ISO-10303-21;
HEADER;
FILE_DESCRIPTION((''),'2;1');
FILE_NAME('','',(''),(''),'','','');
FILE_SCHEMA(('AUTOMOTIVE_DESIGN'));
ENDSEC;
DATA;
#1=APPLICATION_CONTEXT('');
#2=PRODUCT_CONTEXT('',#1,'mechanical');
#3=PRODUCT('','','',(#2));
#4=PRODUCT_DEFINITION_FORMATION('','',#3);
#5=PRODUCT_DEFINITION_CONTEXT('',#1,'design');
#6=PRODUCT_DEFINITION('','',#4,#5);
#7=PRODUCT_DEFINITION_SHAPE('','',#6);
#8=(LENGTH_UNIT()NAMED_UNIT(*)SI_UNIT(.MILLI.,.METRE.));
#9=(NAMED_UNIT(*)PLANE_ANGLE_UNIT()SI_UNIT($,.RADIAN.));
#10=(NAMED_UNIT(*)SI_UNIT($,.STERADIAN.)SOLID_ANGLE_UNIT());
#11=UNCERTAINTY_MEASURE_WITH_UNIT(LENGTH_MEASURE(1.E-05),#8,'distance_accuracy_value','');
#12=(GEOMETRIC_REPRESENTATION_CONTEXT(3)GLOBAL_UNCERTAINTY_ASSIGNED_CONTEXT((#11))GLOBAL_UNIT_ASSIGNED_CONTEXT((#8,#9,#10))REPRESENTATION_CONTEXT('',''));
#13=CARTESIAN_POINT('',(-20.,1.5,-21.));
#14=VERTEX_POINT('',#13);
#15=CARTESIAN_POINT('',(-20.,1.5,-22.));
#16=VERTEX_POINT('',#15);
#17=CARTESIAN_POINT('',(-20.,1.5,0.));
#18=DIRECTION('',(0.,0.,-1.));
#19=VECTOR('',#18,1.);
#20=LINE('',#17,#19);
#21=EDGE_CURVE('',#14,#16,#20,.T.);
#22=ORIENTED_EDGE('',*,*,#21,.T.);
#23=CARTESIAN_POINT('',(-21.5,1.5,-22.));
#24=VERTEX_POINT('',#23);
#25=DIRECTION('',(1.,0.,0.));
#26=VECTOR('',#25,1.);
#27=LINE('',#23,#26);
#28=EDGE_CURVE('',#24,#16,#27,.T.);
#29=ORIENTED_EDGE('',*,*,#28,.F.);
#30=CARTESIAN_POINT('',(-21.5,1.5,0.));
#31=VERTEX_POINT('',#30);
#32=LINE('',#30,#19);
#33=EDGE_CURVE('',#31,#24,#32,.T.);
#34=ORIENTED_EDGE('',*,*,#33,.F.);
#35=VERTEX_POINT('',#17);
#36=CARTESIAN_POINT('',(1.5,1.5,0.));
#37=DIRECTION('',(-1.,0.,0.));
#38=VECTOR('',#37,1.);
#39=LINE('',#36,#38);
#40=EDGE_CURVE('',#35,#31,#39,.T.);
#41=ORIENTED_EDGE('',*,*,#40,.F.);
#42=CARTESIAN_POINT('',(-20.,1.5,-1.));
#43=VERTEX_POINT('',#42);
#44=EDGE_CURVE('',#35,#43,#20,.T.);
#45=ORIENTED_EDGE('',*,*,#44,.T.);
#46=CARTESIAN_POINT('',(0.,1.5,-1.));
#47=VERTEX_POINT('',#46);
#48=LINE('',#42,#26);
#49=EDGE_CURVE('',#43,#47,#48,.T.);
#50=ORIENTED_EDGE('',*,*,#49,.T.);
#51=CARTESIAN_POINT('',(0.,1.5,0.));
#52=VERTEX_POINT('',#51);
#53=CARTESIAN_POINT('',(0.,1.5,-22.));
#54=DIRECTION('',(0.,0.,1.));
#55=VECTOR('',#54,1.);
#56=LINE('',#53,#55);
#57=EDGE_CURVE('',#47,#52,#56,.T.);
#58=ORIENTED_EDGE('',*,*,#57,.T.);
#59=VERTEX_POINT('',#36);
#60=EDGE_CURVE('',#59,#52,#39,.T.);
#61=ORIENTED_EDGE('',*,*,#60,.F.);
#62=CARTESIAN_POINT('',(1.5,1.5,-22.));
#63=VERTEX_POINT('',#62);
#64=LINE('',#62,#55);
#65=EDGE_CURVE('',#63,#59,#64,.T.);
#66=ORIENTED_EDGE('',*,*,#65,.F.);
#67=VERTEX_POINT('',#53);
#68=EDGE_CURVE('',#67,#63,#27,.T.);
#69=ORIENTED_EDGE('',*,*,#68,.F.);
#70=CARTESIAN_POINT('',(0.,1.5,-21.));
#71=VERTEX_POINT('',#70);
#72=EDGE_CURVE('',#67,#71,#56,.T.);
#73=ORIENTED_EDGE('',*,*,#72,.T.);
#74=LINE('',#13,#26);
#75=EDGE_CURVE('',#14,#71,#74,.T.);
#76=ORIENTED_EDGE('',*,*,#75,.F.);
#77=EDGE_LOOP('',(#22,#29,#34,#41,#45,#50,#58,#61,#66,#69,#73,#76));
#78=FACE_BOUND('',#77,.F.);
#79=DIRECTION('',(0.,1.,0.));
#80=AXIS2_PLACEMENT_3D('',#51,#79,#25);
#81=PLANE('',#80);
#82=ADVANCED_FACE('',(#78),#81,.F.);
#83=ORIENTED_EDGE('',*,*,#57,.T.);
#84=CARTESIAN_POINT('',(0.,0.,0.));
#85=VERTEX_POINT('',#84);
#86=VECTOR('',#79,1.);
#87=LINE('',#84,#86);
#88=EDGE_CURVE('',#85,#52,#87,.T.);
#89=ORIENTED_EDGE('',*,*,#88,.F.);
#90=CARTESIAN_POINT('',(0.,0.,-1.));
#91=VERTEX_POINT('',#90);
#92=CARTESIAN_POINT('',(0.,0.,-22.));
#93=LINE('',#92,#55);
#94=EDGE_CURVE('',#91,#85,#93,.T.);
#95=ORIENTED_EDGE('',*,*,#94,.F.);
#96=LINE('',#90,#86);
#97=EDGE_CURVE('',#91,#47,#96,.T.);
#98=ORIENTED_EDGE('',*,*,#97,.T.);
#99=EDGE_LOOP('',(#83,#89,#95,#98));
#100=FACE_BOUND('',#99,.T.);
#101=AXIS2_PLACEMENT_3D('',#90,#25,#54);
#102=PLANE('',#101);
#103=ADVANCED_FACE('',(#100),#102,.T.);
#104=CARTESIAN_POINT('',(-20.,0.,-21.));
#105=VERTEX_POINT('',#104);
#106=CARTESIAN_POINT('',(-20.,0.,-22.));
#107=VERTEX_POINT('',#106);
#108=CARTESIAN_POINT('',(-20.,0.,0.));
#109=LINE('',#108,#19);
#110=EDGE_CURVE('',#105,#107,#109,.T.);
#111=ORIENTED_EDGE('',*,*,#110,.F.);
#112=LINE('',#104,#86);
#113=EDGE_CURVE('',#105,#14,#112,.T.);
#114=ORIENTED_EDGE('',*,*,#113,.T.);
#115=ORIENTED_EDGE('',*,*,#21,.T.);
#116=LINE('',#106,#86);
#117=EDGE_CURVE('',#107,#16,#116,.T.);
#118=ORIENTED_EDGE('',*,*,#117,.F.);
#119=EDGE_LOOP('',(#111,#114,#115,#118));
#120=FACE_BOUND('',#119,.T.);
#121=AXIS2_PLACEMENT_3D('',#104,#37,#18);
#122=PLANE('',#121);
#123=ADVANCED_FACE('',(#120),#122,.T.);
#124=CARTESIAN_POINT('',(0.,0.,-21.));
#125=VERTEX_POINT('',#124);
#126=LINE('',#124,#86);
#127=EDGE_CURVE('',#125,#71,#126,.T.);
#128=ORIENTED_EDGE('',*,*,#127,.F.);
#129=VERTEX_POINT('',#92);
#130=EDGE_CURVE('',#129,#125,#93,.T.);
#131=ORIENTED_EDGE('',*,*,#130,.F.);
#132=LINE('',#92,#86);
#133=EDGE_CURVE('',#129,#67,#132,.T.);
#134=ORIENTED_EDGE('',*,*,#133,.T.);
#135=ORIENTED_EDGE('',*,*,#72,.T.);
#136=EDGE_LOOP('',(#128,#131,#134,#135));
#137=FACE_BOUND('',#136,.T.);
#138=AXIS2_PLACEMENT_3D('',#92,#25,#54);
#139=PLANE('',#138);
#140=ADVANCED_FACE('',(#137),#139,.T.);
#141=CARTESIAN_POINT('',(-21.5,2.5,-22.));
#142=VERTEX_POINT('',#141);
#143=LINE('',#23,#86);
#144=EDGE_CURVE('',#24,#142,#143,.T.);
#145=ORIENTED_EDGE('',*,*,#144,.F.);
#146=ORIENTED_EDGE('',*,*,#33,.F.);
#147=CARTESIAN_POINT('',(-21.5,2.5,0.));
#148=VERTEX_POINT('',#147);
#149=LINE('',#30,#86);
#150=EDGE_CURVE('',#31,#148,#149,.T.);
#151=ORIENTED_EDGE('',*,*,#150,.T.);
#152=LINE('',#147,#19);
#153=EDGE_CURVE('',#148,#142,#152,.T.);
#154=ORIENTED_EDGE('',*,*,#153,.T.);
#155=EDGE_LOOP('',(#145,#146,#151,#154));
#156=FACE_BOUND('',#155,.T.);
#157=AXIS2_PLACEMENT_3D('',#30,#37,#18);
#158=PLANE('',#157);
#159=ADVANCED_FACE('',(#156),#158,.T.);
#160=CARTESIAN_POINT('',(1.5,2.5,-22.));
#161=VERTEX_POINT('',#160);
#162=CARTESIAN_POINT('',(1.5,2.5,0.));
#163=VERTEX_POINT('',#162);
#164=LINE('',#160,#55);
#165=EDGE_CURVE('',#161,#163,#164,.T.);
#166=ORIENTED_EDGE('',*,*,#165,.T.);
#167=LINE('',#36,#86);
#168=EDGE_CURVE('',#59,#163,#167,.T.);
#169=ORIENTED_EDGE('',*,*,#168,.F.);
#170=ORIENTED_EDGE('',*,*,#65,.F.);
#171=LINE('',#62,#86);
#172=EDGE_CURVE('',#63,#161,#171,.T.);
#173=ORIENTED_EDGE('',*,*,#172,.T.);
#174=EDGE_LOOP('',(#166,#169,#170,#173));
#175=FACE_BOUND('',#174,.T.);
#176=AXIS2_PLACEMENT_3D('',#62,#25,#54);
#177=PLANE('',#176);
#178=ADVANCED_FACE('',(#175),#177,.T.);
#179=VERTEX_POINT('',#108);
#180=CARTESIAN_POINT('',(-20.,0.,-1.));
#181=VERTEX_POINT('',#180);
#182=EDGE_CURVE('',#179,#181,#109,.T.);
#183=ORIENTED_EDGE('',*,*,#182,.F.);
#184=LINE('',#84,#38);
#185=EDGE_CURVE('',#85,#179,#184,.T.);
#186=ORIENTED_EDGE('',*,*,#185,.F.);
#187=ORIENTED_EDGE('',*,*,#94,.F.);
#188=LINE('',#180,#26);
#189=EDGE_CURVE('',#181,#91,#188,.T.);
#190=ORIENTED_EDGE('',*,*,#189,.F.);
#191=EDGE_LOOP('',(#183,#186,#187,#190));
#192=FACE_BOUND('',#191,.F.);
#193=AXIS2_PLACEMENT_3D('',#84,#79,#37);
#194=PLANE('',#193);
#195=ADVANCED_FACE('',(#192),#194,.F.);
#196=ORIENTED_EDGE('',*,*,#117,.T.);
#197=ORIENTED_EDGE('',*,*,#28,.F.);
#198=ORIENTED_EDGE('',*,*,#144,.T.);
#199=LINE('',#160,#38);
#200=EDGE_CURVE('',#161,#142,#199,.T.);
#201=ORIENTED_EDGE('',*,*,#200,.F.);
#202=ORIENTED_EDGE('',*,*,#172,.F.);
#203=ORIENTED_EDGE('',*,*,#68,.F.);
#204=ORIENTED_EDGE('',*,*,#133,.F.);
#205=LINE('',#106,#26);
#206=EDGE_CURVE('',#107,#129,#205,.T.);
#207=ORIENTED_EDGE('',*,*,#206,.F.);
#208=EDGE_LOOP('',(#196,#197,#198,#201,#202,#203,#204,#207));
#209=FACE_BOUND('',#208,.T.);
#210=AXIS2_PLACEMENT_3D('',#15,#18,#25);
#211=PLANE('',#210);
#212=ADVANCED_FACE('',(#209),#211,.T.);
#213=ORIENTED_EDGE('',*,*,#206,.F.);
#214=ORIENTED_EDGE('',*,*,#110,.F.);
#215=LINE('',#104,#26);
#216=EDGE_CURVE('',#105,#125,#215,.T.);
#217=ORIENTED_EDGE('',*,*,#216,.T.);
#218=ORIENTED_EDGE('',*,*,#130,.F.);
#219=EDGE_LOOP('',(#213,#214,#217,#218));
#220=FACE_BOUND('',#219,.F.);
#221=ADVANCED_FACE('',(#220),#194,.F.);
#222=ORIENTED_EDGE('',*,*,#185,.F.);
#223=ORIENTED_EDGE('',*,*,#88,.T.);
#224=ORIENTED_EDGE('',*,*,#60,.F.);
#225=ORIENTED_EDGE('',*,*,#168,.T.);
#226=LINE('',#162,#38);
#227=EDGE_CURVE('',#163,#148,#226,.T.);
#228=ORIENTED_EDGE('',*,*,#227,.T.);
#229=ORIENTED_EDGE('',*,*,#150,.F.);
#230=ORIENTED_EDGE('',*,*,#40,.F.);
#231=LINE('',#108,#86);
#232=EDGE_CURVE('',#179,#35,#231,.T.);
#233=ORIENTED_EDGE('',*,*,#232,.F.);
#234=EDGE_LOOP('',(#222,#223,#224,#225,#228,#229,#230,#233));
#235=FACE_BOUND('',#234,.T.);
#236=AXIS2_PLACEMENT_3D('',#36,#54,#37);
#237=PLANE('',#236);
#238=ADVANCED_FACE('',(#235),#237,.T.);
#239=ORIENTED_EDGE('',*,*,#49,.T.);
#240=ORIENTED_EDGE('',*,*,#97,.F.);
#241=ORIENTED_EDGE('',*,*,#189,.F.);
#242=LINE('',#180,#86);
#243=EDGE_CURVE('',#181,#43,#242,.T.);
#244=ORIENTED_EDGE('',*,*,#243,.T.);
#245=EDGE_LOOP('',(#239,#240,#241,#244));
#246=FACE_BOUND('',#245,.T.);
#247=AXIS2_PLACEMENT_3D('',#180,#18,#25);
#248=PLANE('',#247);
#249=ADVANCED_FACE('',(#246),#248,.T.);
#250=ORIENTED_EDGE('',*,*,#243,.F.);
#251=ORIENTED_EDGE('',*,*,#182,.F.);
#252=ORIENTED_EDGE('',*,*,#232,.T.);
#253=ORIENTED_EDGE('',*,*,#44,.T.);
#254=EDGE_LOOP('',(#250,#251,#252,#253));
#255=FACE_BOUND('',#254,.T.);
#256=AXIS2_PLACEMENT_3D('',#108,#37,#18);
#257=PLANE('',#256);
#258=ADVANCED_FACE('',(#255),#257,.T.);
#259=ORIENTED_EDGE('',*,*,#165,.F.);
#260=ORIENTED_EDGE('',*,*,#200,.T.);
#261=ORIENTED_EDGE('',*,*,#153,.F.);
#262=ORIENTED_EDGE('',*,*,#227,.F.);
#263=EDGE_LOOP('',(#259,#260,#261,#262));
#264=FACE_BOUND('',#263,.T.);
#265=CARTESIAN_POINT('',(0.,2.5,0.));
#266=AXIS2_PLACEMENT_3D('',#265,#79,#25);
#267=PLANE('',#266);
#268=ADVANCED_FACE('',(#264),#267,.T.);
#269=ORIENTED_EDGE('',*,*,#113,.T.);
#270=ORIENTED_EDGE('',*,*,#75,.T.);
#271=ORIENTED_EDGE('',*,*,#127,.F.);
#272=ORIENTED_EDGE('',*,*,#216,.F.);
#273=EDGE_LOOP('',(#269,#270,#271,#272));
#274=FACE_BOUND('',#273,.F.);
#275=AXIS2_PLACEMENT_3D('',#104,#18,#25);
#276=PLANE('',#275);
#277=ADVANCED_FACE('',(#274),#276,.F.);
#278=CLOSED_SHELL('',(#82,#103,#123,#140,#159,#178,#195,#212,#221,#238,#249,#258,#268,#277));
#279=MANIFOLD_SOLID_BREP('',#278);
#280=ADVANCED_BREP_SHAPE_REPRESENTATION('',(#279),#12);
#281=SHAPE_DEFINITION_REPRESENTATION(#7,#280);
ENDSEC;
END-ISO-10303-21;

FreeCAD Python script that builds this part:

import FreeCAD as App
import Part
import Sketcher

V = App.Vector


def add_polygon(sketch, points):
    """Adds a closed chain of lines whose ends are joined by coincident constraints."""
    first, n = sketch.GeometryCount, len(points)
    for a, b in zip(points, points[1:] + points[:1]):
        sketch.addGeometry(Part.LineSegment(App.Vector(*a, 0), App.Vector(*b, 0)), False)
    for i in range(n):
        sketch.addConstraint(Sketcher.Constraint("Coincident", first + i, 2, first + (i + 1) % n, 1))

doc = App.newDocument("Part")
body = doc.addObject("PartDesign::Body", "Body")
body.AllowCompound = True

# Sketch on XZ plane
sketch1 = body.newObject("Sketcher::SketchObject", "Sketch")
sketch1.AttachmentSupport = (doc.getObject("XZ_Plane"), [""])
sketch1.MapMode = "FlatFace"
add_polygon(sketch1, [(-20, 0), (0, 0), (0, -1), (-20, -1)])  # lines 0-3
add_polygon(sketch1, [(-20, -21), (0, -21), (0, -22), (-20, -22)])  # lines 4-7
sketch1.addConstraint([
    Sketcher.Constraint("Horizontal", 0),
    Sketcher.Constraint("Vertical", 1),
    Sketcher.Constraint("Horizontal", 2),
    Sketcher.Constraint("Vertical", 3),
    Sketcher.Constraint("Horizontal", 4),
    Sketcher.Constraint("Vertical", 5),
    Sketcher.Constraint("Horizontal", 6),
    Sketcher.Constraint("Vertical", 7),
    Sketcher.Constraint("Coincident", 0, 2, -1, 1),
    Sketcher.Constraint("PointOnObject", 4, 2, -2),
    Sketcher.Constraint("Vertical", 3, 2, 6, 2),
    Sketcher.Constraint("Equal", 3, 5),
    Sketcher.Constraint("DistanceX", 0, 1, 0, 2, 20.0),
    Sketcher.Constraint("DistanceY", 1, 2, 1, 1, 1.0),
    Sketcher.Constraint("DistanceY", 5, 2, -1, 1, 22.0),
])
pad1 = body.newObject("PartDesign::Pad", "Pad")
pad1.Profile = sketch1
pad1.Length = 1.5
pad1.Reversed = True

# Sketch on XZ plane
sketch2 = body.newObject("Sketcher::SketchObject", "Sketch001")
sketch2.AttachmentSupport = (doc.getObject("XZ_Plane"), [""])
sketch2.MapMode = "FlatFace"
sketch2.AttachmentOffset = App.Placement(V(0, 0, -1.5), App.Rotation())
add_polygon(sketch2, [(-22, 0), (2, 0), (2, -22), (-22, -22)])  # lines 0-3
sketch2.addConstraint([
    Sketcher.Constraint("Horizontal", 0),
    Sketcher.Constraint("Vertical", 1),
    Sketcher.Constraint("Horizontal", 2),
    Sketcher.Constraint("Vertical", 3),
    Sketcher.Constraint("PointOnObject", 0, 2, -1),
    Sketcher.Constraint("DistanceX", 0, 1, 0, 2, 23.0),
    Sketcher.Constraint("DistanceY", 1, 2, 1, 1, 22.0),
    Sketcher.Constraint("DistanceX", -1, 1, 0, 2, 1.5),
])
pad2 = body.newObject("PartDesign::Pad", "Pad001")
pad2.Profile = sketch2
pad2.Length = 1
pad2.Reversed = True

doc.recompute()
